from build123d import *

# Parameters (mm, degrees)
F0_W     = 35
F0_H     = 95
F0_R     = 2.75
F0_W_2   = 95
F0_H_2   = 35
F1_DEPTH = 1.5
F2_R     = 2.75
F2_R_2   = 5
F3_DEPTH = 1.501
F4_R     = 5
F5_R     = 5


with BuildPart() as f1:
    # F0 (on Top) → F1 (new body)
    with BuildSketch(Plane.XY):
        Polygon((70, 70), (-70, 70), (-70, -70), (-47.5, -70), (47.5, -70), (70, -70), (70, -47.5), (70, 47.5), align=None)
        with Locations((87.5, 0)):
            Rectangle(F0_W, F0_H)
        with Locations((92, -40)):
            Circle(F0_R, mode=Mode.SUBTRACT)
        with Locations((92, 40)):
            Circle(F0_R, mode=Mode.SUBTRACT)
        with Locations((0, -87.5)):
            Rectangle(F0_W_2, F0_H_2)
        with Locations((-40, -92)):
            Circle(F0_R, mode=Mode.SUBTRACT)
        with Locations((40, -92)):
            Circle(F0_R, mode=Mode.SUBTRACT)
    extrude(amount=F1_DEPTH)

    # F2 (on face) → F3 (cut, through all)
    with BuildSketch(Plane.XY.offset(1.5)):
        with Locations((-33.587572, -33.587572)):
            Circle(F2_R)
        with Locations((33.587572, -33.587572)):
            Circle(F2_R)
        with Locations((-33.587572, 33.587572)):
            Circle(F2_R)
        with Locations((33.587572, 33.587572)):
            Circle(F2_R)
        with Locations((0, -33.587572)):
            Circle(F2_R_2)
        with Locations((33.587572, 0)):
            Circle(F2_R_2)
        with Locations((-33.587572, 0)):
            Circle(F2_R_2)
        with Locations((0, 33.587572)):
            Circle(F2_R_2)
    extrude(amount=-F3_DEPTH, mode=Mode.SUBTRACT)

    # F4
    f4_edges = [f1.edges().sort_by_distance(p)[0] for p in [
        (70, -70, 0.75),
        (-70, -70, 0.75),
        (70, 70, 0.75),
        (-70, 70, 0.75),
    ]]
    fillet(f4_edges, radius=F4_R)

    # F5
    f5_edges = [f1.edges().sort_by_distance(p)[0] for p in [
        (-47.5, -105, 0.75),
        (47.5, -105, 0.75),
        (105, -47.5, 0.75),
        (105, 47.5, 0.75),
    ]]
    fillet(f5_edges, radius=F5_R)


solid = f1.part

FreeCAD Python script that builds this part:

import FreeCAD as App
import Part
import Sketcher
from FreeCAD import Vector


def edges_at(feature, points):
    """Names of the edges that pass closest to the given points."""
    edges = feature.Shape.Edges
    near = lambda p: min(range(len(edges)), key=lambda i: edges[i].distToShape(Part.Vertex(*p))[0])
    return sorted({f"Edge{near(p) + 1}" for p in points})


def add_polygon(sketch, points):
    """Adds a closed chain of lines whose ends are joined by coincident constraints."""
    first, n = sketch.GeometryCount, len(points)
    for a, b in zip(points, points[1:] + points[:1]):
        sketch.addGeometry(Part.LineSegment(App.Vector(*a, 0), App.Vector(*b, 0)), False)
    for i in range(n):
        sketch.addConstraint(Sketcher.Constraint("Coincident", first + i, 2, first + (i + 1) % n, 1))

doc = App.newDocument("Part")
body = doc.addObject("PartDesign::Body", "Body")

# Sketch on XY plane
sketch1 = doc.addObject("Sketcher::SketchObject", "Sketch")
body.addObject(sketch1)
sketch1.AttachmentSupport = (doc.XY_Plane, [""])
sketch1.MapMode = "FlatFace"
add_polygon(sketch1, [(70, 70), (-70, 70), (-70, -70), (-47.5, -70), (-47.5, -105), (47.5, -105), (47.5, -70), (70, -70), (70, -47.5), (105, -47.5), (105, 47.5), (70, 47.5)])  # lines 0-11
sketch1.addGeometry(Part.Circle(Vector(-40, -92, 0), Vector(0, 0, 1), 2.8), False)  # 12
sketch1.addGeometry(Part.Circle(Vector(40, -92, 0), Vector(0, 0, 1), 2.8), False)  # 13
sketch1.addGeometry(Part.Circle(Vector(92, -40, 0), Vector(0, 0, 1), 2.8), False)  # 14
sketch1.addGeometry(Part.Circle(Vector(92, 40, 0), Vector(0, 0, 1), 2.8), False)  # 15
sketch1.addConstraint([
    Sketcher.Constraint("Horizontal", 0),
    Sketcher.Constraint("Vertical", 1),
    Sketcher.Constraint("Horizontal", 2),
    Sketcher.Constraint("Vertical", 3),
    Sketcher.Constraint("Horizontal", 4),
    Sketcher.Constraint("Vertical", 5),
    Sketcher.Constraint("Horizontal", 6),
    Sketcher.Constraint("Vertical", 7),
    Sketcher.Constraint("Horizontal", 8),
    Sketcher.Constraint("Vertical", 9),
    Sketcher.Constraint("Horizontal", 10),
    Sketcher.Constraint("Vertical", 11),
    Sketcher.Constraint("Equal", 12, 13),
    Sketcher.Constraint("Equal", 13, 14),
    Sketcher.Constraint("Equal", 14, 15),
    Sketcher.Constraint("Symmetric", 0, 2, 6, 2, -1, 1),
    Sketcher.Constraint("Symmetric", 1, 2, 11, 2, -1, 1),
    Sketcher.Constraint("Symmetric", 12, 3, 13, 3, -2),
    Sketcher.Constraint("Symmetric", 14, 3, 15, 3, -1),
    Sketcher.Constraint("Equal", 2, 6),
    Sketcher.Constraint("Equal", 0, 1),
    Sketcher.Constraint("Equal", 10, 3),
    Sketcher.Constraint("Equal", 6, 7),
    Sketcher.Constraint("Equal", 4, 9),
    Sketcher.Constraint("Diameter", 12, 5.5),
    Sketcher.Constraint("DistanceX", 0, 2, 0, 1, 140.0),
    Sketcher.Constraint("DistanceX", 4, 1, 4, 2, 95.0),
    Sketcher.Constraint("DistanceX", 8, 1, 8, 2, 35.0),
    Sketcher.Constraint("DistanceX", 12, 3, -1, 1, 40.0),
    Sketcher.Constraint("DistanceY", 12, 3, -1, 1, 92.0),
    Sketcher.Constraint("DistanceX", -1, 1, 14, 3, 92.0),
    Sketcher.Constraint("DistanceY", 14, 3, -1, 1, 40.0),
])
pad1 = doc.addObject("PartDesign::Pad", "Pad")
body.addObject(pad1)
pad1.Profile = sketch1
pad1.Length = 1.5

# Sketch on XY plane
sketch2 = doc.addObject("Sketcher::SketchObject", "Sketch001")
body.addObject(sketch2)
sketch2.AttachmentSupport = (doc.XY_Plane, [""])
sketch2.MapMode = "FlatFace"
sketch2.AttachmentOffset = App.Placement(Vector(0, 0, 1.5), App.Rotation())
sketch2.addGeometry([
    Part.Circle(Vector(-33.6, -33.6, 0), Vector(0, 0, 1), 2.8),  # 0
    Part.Circle(Vector(33.6, -33.6, 0), Vector(0, 0, 1), 2.8),  # 1
    Part.Circle(Vector(-33.6, 33.6, 0), Vector(0, 0, 1), 2.8),  # 2
    Part.Circle(Vector(33.6, 33.6, 0), Vector(0, 0, 1), 2.8),  # 3
    Part.Circle(Vector(0, -33.6, 0), Vector(0, 0, 1), 5),  # 4
    Part.Circle(Vector(33.6, 0, 0), Vector(0, 0, 1), 5),  # 5
    Part.Circle(Vector(-33.6, 0, 0), Vector(0, 0, 1), 5),  # 6
    Part.Circle(Vector(0, 33.6, 0), Vector(0, 0, 1), 5),  # 7
], False)
sketch2.addConstraint([
    Sketcher.Constraint("Equal", 0, 1),
    Sketcher.Constraint("Equal", 1, 2),
    Sketcher.Constraint("Equal", 2, 3),
    Sketcher.Constraint("Equal", 4, 5),
    Sketcher.Constraint("Equal", 5, 6),
    Sketcher.Constraint("Equal", 6, 7),
    Sketcher.Constraint("Symmetric", 1, 3, 2, 3, -1, 1),
    Sketcher.Constraint("Symmetric", 0, 3, 3, 3, -1, 1),
    Sketcher.Constraint("Symmetric", 5, 3, 6, 3, -1, 1),
    Sketcher.Constraint("Symmetric", 4, 3, 7, 3, -1, 1),
    Sketcher.Constraint("Symmetric", 0, 3, 1, 3, -2),
    Sketcher.Constraint("PointOnObject", 4, 3, -2),
    Sketcher.Constraint("PointOnObject", 5, 3, -1),
    Sketcher.Constraint("Horizontal", 1, 3, 4, 3),
    Sketcher.Constraint("Vertical", 3, 3, 5, 3),
    Sketcher.Constraint("Diameter", 4, 10.0),
    Sketcher.Constraint("Diameter", 0, 5.5),
    Sketcher.Constraint("DistanceX", 0, 3, -1, 1, 33.587572),
    Sketcher.Constraint("DistanceY", 0, 3, -1, 1, 33.587572),
])
pocket1 = doc.addObject("PartDesign::Pocket", "Pocket")
body.addObject(pocket1)
pocket1.Profile = sketch2
pocket1.Type = "ThroughAll"
doc.recompute()

fillet = doc.addObject("PartDesign::Fillet", "Fillet")
body.addObject(fillet)
fillet.Base = (pocket1, edges_at(pocket1, [
    (70, -70, 0.75),
    (-70, -70, 0.75),
    (70, 70, 0.75),
    (-70, 70, 0.75),
]))
fillet.Radius = 5
doc.recompute()

fillet2 = doc.addObject("PartDesign::Fillet", "Fillet001")
body.addObject(fillet2)
fillet2.Base = (fillet, edges_at(fillet, [
    (-47.5, -105, 0.75),
    (47.5, -105, 0.75),
    (105, -47.5, 0.75),
    (105, 47.5, 0.75),
]))
fillet2.Radius = 5

doc.recompute()
